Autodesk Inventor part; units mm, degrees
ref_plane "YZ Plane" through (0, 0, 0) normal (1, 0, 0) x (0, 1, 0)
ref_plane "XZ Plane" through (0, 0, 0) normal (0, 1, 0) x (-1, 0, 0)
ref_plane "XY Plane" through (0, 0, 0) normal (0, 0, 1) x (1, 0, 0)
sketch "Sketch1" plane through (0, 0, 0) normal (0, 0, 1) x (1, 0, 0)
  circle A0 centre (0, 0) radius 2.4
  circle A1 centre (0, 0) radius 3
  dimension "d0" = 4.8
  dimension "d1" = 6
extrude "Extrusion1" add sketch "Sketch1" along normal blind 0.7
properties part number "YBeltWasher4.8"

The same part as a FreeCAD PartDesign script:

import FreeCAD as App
import Part
import Sketcher
Q = App.Units.Quantity

doc = App.newDocument("Part")
params = doc.addObject("Spreadsheet::Sheet", "Params")
for row, (alias, value) in enumerate([
    ("sketch1_diameter", "6 mm"),
    ("sketch1_diameter2", "4.8 mm"),
    ("pad1_length", "0.7 mm"),
], start=1):
    params.set(f"A{row}", alias)
    params.set(f"B{row}", "=" + value)
    params.setAlias(f"B{row}", alias)

body = doc.addObject("PartDesign::Body", "Body")

# Sketch on XY plane
sketch1 = doc.addObject("Sketcher::SketchObject", "Sketch")
body.addObject(sketch1)
sketch1.AttachmentSupport = (doc.XY_Plane, [""])
sketch1.MapMode = "FlatFace"
sketch1.addGeometry([
    Part.Circle(App.Vector(0, 0, 0), App.Vector(0, 0, 1), 3),
    Part.Circle(App.Vector(0, 0, 0), App.Vector(0, 0, 1), 2.4),
], False)
sketch1.addConstraint([
    Sketcher.Constraint("Coincident", 0, 3, -1, 1),
    Sketcher.Constraint("Coincident", 1, 3, -1, 1),
    Sketcher.Constraint("Diameter", 0, Q("6 mm")),
    Sketcher.Constraint("Diameter", 1, Q("4.8 mm")),
])
sketch1.setExpression("Constraints[2]", "Params.sketch1_diameter")
sketch1.setExpression("Constraints[3]", "Params.sketch1_diameter2")
pad1 = doc.addObject("PartDesign::Pad", "Pad")
body.addObject(pad1)
pad1.Profile = sketch1
pad1.setExpression("Length", "Params.pad1_length")

doc.recompute()
